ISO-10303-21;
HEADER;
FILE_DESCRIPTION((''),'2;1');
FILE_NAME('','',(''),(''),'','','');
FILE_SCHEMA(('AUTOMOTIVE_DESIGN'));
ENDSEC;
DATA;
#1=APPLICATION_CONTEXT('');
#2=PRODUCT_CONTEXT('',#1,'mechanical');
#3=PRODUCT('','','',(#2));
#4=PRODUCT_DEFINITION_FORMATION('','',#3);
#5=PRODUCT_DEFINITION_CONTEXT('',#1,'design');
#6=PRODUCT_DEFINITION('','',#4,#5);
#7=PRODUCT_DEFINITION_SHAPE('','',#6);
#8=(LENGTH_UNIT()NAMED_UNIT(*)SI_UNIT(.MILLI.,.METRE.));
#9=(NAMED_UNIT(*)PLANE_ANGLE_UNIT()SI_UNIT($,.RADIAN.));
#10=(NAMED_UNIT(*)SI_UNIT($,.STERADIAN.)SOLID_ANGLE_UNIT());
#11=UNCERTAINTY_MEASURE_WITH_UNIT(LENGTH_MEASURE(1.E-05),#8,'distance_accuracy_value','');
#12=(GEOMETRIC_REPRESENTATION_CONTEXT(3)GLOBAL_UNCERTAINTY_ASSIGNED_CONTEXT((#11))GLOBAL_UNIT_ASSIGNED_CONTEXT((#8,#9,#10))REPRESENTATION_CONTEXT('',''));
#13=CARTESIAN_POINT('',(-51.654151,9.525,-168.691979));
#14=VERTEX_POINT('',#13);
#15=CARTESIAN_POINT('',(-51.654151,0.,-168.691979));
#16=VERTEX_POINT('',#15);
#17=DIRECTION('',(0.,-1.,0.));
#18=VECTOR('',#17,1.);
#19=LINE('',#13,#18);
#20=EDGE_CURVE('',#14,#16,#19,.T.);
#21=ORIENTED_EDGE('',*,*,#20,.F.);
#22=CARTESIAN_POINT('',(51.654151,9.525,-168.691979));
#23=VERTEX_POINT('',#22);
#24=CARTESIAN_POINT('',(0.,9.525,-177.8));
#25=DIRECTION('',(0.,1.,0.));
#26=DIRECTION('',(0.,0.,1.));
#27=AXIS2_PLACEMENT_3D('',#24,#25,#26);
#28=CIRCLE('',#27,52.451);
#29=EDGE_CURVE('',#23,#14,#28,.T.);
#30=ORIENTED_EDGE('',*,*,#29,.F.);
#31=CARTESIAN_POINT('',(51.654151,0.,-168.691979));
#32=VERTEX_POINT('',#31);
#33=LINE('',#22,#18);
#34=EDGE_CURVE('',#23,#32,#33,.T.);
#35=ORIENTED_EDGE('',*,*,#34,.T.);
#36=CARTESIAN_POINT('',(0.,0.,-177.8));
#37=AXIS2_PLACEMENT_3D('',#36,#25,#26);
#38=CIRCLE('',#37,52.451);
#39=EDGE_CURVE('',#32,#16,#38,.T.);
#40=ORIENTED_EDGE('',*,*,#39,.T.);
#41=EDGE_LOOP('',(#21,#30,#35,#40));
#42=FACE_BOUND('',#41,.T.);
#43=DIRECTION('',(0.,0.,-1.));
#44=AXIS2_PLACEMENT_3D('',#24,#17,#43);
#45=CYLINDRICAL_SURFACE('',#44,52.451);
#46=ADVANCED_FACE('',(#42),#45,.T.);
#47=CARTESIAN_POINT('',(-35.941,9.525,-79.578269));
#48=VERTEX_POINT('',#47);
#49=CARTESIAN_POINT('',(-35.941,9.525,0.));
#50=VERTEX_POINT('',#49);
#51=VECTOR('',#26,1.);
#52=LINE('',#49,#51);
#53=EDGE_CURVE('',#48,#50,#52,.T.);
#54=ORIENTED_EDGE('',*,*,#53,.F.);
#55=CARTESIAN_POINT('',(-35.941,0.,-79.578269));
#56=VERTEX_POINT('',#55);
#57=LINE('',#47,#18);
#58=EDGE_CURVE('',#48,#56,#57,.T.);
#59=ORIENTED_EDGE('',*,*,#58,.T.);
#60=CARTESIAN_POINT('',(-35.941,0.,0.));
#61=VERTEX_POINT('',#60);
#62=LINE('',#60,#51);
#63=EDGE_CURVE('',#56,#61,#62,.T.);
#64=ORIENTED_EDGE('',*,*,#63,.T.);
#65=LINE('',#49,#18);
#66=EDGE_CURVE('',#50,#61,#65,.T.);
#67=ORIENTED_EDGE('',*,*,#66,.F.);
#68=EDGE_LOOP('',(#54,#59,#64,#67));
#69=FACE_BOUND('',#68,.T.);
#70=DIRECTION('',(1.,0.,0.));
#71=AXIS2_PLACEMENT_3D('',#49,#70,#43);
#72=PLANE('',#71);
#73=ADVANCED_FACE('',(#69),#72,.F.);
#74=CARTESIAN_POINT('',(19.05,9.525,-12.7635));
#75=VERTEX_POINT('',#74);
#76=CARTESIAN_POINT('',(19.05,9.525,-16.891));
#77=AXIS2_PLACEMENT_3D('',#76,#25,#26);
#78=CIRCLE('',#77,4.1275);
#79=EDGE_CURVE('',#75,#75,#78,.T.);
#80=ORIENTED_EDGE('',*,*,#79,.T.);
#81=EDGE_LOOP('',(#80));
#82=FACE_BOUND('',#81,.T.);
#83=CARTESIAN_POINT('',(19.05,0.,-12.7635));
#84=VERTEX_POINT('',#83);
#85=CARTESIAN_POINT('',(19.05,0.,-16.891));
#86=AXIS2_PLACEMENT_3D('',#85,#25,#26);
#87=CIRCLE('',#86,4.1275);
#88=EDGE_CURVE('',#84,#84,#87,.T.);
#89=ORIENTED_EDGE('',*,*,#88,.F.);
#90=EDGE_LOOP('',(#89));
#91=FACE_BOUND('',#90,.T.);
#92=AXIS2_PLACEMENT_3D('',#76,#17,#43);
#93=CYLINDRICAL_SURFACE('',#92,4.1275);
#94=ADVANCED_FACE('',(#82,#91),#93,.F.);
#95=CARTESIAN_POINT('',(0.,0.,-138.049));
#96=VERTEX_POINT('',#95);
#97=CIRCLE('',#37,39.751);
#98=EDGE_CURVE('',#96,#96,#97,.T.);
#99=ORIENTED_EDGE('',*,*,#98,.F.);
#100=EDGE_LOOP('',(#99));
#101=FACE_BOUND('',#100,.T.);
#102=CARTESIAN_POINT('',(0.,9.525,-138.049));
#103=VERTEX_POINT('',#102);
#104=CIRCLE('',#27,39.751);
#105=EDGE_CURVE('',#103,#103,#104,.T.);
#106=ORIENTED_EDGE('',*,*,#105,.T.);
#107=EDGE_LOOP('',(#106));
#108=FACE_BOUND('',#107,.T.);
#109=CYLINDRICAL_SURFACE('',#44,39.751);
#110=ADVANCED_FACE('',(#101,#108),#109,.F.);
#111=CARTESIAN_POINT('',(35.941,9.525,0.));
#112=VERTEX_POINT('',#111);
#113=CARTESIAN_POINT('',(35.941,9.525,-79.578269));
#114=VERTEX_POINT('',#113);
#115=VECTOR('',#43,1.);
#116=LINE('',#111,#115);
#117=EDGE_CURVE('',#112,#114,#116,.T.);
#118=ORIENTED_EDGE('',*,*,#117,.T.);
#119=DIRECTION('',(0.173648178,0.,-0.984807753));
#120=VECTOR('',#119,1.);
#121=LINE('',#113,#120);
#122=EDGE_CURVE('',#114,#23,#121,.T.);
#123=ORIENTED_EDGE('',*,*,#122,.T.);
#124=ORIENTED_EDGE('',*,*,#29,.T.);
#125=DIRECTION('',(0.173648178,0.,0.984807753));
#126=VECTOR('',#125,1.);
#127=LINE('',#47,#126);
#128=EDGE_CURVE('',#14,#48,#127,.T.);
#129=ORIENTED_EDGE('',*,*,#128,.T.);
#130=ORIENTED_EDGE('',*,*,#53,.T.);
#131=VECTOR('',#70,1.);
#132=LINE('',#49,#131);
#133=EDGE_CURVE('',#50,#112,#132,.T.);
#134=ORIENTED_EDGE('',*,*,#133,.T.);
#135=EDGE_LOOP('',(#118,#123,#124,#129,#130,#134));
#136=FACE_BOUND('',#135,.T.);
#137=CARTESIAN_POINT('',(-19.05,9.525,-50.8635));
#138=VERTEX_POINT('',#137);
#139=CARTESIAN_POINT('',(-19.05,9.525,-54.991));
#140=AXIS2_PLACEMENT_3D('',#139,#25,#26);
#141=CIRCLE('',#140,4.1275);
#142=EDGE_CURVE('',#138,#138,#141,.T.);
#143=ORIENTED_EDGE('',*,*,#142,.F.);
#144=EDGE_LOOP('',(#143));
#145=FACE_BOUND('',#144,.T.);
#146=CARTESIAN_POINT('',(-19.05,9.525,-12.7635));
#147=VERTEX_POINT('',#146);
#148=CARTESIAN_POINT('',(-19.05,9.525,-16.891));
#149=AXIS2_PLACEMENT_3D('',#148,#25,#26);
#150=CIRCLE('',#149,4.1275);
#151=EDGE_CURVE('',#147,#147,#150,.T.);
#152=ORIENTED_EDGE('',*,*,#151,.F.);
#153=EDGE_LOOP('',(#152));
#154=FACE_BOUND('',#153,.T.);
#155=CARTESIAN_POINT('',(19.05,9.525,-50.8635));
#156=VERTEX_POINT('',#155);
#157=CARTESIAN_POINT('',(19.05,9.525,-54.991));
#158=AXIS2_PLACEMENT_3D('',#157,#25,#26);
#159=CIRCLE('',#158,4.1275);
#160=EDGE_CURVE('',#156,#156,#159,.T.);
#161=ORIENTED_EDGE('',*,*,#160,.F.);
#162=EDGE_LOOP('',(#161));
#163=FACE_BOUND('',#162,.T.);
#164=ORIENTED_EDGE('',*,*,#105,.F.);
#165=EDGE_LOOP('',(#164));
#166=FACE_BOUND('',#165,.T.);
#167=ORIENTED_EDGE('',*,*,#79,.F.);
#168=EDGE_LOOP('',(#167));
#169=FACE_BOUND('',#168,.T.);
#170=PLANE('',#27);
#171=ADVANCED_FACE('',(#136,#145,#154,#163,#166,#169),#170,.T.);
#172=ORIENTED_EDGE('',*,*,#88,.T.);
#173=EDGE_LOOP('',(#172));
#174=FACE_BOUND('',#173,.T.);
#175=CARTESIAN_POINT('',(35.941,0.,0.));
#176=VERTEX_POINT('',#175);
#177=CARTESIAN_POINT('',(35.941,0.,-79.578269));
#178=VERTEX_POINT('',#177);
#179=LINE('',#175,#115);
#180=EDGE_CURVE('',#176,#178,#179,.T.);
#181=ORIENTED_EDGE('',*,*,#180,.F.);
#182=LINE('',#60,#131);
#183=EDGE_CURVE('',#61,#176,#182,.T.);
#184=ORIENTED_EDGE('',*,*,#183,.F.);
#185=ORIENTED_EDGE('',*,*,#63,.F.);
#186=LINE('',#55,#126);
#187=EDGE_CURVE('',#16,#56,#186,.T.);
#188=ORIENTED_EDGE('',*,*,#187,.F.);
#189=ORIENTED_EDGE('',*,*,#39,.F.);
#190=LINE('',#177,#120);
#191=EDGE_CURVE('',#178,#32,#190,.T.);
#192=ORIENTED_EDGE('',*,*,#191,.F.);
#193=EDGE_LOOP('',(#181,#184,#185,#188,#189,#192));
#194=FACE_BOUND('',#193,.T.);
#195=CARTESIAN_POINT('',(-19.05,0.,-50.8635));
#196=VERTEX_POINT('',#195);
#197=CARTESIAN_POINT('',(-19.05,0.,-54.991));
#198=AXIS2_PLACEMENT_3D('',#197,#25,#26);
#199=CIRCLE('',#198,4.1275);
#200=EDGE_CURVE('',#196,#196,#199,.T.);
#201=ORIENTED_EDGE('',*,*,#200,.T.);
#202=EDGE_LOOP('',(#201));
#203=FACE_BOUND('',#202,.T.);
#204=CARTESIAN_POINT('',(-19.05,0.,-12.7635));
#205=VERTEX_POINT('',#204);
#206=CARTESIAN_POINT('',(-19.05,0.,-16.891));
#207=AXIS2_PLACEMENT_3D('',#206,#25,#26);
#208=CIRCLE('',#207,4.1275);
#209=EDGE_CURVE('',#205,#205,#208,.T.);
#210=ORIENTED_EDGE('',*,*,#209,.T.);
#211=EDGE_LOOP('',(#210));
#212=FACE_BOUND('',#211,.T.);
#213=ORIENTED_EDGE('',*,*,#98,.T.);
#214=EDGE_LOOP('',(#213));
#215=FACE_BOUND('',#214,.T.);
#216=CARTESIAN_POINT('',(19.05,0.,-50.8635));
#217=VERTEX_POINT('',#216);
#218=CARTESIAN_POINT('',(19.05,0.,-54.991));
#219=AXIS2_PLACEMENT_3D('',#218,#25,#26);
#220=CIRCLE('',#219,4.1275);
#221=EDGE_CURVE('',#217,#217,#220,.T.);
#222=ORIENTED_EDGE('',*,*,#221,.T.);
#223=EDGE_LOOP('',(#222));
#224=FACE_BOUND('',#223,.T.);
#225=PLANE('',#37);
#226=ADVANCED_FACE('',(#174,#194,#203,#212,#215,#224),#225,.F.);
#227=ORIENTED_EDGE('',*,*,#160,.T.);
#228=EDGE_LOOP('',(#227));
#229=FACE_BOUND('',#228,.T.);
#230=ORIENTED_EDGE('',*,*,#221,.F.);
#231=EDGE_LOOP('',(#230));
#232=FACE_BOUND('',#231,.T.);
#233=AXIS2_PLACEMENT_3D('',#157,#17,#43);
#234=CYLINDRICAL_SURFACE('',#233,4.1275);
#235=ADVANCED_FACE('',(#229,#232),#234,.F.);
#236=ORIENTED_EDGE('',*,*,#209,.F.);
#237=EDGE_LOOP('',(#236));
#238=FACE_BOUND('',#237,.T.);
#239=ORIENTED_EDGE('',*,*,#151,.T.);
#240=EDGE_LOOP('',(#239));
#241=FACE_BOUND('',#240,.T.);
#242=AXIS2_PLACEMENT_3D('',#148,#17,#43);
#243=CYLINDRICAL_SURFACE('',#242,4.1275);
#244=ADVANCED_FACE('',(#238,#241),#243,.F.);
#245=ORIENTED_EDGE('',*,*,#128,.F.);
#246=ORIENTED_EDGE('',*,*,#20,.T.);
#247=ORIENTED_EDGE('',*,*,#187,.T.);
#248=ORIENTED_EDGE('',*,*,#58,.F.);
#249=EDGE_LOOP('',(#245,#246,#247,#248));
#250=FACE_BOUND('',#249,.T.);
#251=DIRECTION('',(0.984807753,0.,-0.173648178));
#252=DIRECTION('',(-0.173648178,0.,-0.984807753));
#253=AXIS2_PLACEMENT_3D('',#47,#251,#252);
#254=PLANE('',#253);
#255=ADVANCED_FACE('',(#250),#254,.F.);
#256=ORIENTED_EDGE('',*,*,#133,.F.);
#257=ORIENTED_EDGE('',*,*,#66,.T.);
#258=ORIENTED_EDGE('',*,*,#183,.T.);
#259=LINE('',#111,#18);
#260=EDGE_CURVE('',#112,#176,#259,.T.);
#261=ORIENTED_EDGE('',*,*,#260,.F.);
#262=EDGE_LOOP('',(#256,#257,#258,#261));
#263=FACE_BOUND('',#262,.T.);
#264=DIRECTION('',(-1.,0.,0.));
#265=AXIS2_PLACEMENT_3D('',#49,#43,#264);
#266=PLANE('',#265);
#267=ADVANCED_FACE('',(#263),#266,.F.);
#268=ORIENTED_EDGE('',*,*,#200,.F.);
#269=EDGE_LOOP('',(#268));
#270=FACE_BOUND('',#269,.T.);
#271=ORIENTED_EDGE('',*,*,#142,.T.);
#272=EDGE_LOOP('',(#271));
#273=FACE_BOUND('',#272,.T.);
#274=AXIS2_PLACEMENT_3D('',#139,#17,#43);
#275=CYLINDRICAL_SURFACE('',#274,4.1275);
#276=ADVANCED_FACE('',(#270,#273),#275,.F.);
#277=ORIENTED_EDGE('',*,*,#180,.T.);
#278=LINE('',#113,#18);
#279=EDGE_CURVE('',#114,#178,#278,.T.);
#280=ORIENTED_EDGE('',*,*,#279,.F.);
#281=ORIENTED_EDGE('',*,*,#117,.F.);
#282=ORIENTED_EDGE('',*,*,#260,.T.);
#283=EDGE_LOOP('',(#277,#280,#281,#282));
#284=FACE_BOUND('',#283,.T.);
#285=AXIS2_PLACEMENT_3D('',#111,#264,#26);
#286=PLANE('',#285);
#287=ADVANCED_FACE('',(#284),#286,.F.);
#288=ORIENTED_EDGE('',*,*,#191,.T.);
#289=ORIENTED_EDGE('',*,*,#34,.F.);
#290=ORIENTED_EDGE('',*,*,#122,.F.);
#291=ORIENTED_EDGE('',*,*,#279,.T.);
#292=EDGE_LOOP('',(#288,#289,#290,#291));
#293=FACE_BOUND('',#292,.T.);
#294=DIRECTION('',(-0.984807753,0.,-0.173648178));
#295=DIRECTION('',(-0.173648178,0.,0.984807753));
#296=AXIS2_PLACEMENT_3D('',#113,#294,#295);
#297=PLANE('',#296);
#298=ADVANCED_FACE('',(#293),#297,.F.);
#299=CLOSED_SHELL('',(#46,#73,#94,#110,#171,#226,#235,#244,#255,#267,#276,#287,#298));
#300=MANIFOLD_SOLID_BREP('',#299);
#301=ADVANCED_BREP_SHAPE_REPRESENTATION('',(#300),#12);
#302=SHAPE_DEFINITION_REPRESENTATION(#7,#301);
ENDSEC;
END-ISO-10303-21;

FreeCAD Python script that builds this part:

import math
import FreeCAD as App
import Part
import Sketcher
from FreeCAD import Vector
Q = App.Units.Quantity

doc = App.newDocument("Part")
params = doc.addObject("Spreadsheet::Sheet", "Params")
for row, (alias, value) in enumerate([
    ("sketch1_diameter", "3.13 in"),
    ("sketch1_diameter2", "0.325 in"),
    ("sketch1_radius", "2.065 in"),
    ("sketch1_width", "2.83 in"),
    ("pad1_length", "0.375 in"),
], start=1):
    params.set(f"A{row}", alias)
    params.set(f"B{row}", "=" + value)
    params.setAlias(f"B{row}", alias)

body = doc.addObject("PartDesign::Body", "Body")

# Sketch on XZ plane
sketch1 = body.newObject("Sketcher::SketchObject", "Sketch")
sketch1.AttachmentSupport = (doc.getObject("XZ_Plane"), [""])
sketch1.MapMode = "FlatFace"
sketch1.addGeometry(Part.LineSegment(Vector(-35.9, 0, 0), Vector(35.9, 0, 0)), False)
sketch1.addGeometry(Part.LineSegment(Vector(35.9, 0, 0), Vector(35.9, -79.6, 0)), False)
sketch1.addGeometry(Part.LineSegment(Vector(35.9, -79.6, 0), Vector(51.7, -168.7, 0)), False)
sketch1.addGeometry(Part.ArcOfCircle(Part.Circle(Vector(0, -177.8, 0), Vector(0, 0, 1), 52.5), math.radians(170), math.radians(370)), False)
sketch1.addGeometry(Part.LineSegment(Vector(-51.7, -168.7, 0), Vector(-35.9, -79.6, 0)), False)
sketch1.addGeometry(Part.LineSegment(Vector(-35.9, -79.6, 0), Vector(-35.9, 0, 0)), False)
sketch1.addGeometry(Part.Circle(Vector(-19.1, -16.9, 0), Vector(0, 0, 1), 4.1), False)
sketch1.addGeometry(Part.Circle(Vector(-19.1, -55, 0), Vector(0, 0, 1), 4.1), False)
sketch1.addGeometry(Part.Circle(Vector(19.1, -16.9, 0), Vector(0, 0, 1), 4.1), False)
sketch1.addGeometry(Part.Circle(Vector(19.1, -55, 0), Vector(0, 0, 1), 4.1), False)
sketch1.addGeometry(Part.Circle(Vector(0, -177.8, 0), Vector(0, 0, 1), 39.8), False)
sketch1.addConstraint(Sketcher.Constraint("Coincident", 0, 2, 1, 1))
sketch1.addConstraint(Sketcher.Constraint("Coincident", 1, 2, 2, 1))
sketch1.addConstraint(Sketcher.Constraint("Tangent", 2, 2, 3, 2))
sketch1.addConstraint(Sketcher.Constraint("Tangent", 3, 1, 4, 1))
sketch1.addConstraint(Sketcher.Constraint("Coincident", 4, 2, 5, 1))
sketch1.addConstraint(Sketcher.Constraint("Coincident", 5, 2, 0, 1))
sketch1.addConstraint(Sketcher.Constraint("Horizontal", 0))
sketch1.addConstraint(Sketcher.Constraint("Vertical", 1))
sketch1.addConstraint(Sketcher.Constraint("Vertical", 5))
sketch1.addConstraint(Sketcher.Constraint("Coincident", 10, 3, 3, 3))
sketch1.addConstraint(Sketcher.Constraint("Equal", 6, 7))
sketch1.addConstraint(Sketcher.Constraint("Equal", 7, 8))
sketch1.addConstraint(Sketcher.Constraint("Equal", 8, 9))
sketch1.addConstraint(Sketcher.Constraint("Symmetric", 0, 2, 5, 2, -1, 1))
sketch1.addConstraint(Sketcher.Constraint("Symmetric", 6, 3, 8, 3, -2))
sketch1.addConstraint(Sketcher.Constraint("Symmetric", 7, 3, 9, 3, -2))
sketch1.addConstraint(Sketcher.Constraint("Symmetric", 2, 2, 3, 1, -2))
sketch1.addConstraint(Sketcher.Constraint("Vertical", 6, 3, 7, 3))
sketch1.addConstraint(Sketcher.Constraint("Diameter", 10, Q("3.13 in")))
sketch1.addConstraint(Sketcher.Constraint("Diameter", 6, Q("0.325 in")))
sketch1.addConstraint(Sketcher.Constraint("DistanceY", 3, 3, -1, 1, Q("7 in")))
sketch1.addConstraint(Sketcher.Constraint("Angle", 2, Q("-80 deg")))
sketch1.addConstraint(Sketcher.Constraint("Radius", 3, Q("2.065 in")))
sketch1.addConstraint(Sketcher.Constraint("DistanceX", 0, 1, 0, 2, Q("2.83 in")))
sketch1.addConstraint(Sketcher.Constraint("DistanceY", 7, 3, 6, 3, Q("1.5 in")))
sketch1.addConstraint(Sketcher.Constraint("DistanceX", 6, 3, 8, 3, Q("1.5 in")))
sketch1.addConstraint(Sketcher.Constraint("DistanceY", 6, 3, -1, 1, Q("0.665 in")))
sketch1.setExpression("Constraints[18]", "Params.sketch1_diameter")
sketch1.setExpression("Constraints[19]", "Params.sketch1_diameter2")
sketch1.setExpression("Constraints[22]", "Params.sketch1_radius")
sketch1.setExpression("Constraints[23]", "Params.sketch1_width")
pad1 = body.newObject("PartDesign::Pad", "Pad")
pad1.Profile = sketch1
pad1.setExpression("Length", "Params.pad1_length")
pad1.Reversed = True

doc.recompute()
